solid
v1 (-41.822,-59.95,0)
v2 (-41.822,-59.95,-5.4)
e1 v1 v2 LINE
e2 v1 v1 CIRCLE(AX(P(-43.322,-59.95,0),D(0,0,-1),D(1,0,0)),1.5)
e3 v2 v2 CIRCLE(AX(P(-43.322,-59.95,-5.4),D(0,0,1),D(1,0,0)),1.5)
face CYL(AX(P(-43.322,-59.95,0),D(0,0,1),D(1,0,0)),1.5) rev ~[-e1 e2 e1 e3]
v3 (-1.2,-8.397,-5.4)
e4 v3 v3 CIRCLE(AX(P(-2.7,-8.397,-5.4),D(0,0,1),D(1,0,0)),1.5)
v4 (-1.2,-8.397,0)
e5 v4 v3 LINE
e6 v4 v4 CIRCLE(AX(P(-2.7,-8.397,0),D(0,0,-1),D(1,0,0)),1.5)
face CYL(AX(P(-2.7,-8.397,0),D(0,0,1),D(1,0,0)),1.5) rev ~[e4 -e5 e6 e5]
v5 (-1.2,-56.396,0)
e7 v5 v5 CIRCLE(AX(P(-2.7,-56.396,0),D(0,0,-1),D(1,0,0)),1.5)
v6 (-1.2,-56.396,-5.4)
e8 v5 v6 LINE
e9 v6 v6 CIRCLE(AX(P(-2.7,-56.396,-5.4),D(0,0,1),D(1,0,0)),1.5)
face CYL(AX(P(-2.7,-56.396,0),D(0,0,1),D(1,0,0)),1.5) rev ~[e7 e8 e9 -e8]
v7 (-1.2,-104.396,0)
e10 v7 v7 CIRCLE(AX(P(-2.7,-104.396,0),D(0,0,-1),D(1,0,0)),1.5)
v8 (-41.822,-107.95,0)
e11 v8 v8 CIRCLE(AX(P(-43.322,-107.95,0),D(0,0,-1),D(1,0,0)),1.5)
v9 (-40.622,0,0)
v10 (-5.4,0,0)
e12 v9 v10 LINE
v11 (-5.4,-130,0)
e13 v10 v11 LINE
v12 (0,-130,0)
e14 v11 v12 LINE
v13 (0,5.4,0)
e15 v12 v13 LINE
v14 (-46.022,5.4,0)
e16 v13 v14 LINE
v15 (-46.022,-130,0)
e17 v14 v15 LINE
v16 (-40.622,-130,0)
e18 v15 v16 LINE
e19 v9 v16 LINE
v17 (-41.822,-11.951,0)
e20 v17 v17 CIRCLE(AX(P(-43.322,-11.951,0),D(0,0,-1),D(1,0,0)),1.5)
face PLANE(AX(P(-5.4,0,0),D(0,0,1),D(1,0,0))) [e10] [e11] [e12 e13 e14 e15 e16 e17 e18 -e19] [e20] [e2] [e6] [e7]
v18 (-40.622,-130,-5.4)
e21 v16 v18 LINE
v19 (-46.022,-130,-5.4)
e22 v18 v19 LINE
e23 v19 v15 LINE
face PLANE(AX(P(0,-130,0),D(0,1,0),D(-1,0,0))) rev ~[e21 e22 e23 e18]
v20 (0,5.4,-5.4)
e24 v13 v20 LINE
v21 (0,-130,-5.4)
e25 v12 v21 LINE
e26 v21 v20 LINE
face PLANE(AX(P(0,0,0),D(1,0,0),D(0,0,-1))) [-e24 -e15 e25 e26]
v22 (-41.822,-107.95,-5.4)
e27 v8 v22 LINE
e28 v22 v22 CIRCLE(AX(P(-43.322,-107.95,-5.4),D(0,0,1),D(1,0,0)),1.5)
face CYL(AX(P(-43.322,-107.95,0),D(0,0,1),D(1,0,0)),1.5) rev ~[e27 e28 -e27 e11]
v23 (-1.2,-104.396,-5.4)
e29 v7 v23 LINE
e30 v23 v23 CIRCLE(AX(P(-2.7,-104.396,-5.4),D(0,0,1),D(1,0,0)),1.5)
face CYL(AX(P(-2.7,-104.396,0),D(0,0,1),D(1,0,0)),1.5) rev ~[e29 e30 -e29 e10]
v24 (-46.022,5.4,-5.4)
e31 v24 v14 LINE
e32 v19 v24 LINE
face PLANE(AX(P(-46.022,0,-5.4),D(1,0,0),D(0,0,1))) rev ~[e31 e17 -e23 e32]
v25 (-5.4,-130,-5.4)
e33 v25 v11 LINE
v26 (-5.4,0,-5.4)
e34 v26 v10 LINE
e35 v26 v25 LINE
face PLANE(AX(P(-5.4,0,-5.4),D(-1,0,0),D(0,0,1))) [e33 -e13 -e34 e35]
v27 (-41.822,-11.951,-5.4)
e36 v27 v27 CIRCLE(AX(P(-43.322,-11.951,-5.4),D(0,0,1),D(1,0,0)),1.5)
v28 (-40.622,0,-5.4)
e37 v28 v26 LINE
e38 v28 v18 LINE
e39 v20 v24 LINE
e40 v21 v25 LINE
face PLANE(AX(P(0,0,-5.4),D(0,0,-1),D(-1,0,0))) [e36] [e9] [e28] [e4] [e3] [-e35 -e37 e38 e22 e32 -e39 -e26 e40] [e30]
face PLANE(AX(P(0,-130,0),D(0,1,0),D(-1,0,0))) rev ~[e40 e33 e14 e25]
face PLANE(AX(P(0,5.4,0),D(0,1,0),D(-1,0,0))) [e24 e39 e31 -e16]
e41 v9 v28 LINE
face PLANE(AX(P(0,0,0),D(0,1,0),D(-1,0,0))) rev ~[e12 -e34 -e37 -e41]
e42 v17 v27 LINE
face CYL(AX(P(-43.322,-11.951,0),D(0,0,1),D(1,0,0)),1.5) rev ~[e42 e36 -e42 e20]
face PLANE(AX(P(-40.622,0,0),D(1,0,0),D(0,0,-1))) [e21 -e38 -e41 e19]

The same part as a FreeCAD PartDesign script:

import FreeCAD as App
import Part
import Sketcher

V = App.Vector


def add_polygon(sketch, points):
    """Adds a closed chain of lines whose ends are joined by coincident constraints."""
    first, n = sketch.GeometryCount, len(points)
    for a, b in zip(points, points[1:] + points[:1]):
        sketch.addGeometry(Part.LineSegment(App.Vector(*a, 0), App.Vector(*b, 0)), False)
    for i in range(n):
        sketch.addConstraint(Sketcher.Constraint("Coincident", first + i, 2, first + (i + 1) % n, 1))

doc = App.newDocument("Part")
body = doc.addObject("PartDesign::Body", "Body")
body.AllowCompound = True

sketch1 = doc.addObject("Sketcher::SketchObject", "Sketch")
body.addObject(sketch1)
sketch1.AttachmentSupport = (doc.XZ_Plane, [""])
sketch1.MapMode = "FlatFace"
add_polygon(sketch1, [(-5.4, 0), (0, 0), (0, -5.4), (-5.4, -5.4)])
add_polygon(sketch1, [(-46.022, 0), (-40.622, 0), (-40.622, -5.4), (-46.022, -5.4)])
sketch1.addConstraint(Sketcher.Constraint("Horizontal", 0))
sketch1.addConstraint(Sketcher.Constraint("Vertical", 1))
sketch1.addConstraint(Sketcher.Constraint("Horizontal", 2))
sketch1.addConstraint(Sketcher.Constraint("Vertical", 3))
sketch1.addConstraint(Sketcher.Constraint("Horizontal", 4))
sketch1.addConstraint(Sketcher.Constraint("Vertical", 5))
sketch1.addConstraint(Sketcher.Constraint("Horizontal", 6))
sketch1.addConstraint(Sketcher.Constraint("Vertical", 7))
sketch1.addConstraint(Sketcher.Constraint("Coincident", 0, 2, -1, 1))
sketch1.addConstraint(Sketcher.Constraint("PointOnObject", 4, 2, -1))
sketch1.addConstraint(Sketcher.Constraint("Horizontal", 2, 2, 5, 2))
sketch1.addConstraint(Sketcher.Constraint("Equal", 2, 4))
sketch1.addConstraint(Sketcher.Constraint("Equal", 6, 1))
sketch1.addConstraint(Sketcher.Constraint("DistanceX", 0, 1, 0, 2, 5.4))
sketch1.addConstraint(Sketcher.Constraint("DistanceX", 4, 2, 3, 2, 35.222))
pad1 = doc.addObject("PartDesign::Pad", "Pad")
body.addObject(pad1)
pad1.Profile = sketch1
pad1.Length = 130

sketch2 = doc.addObject("Sketcher::SketchObject", "Sketch001")
body.addObject(sketch2)
sketch2.AttachmentSupport = (doc.XZ_Plane, [""])
sketch2.MapMode = "FlatFace"
add_polygon(sketch2, [(0, 0), (0, -5.4), (-46.022, -5.4), (-46.022, 0)])
sketch2.addConstraint(Sketcher.Constraint("Vertical", 0))
sketch2.addConstraint(Sketcher.Constraint("Horizontal", 1))
sketch2.addConstraint(Sketcher.Constraint("Vertical", 2))
sketch2.addConstraint(Sketcher.Constraint("Horizontal", 3))
sketch2.addConstraint(Sketcher.Constraint("Coincident", 3, 2, -1, 1))
sketch2.addConstraint(Sketcher.Constraint("DistanceY", 0, 2, 0, 1, 5.4))
sketch2.addConstraint(Sketcher.Constraint("DistanceX", 1, 2, 1, 1, 46.022))
pad2 = doc.addObject("PartDesign::Pad", "Pad001")
body.addObject(pad2)
pad2.Profile = sketch2
pad2.Length = 5.4
pad2.Reversed = True

sketch3 = doc.addObject("Sketcher::SketchObject", "Sketch002")
body.addObject(sketch3)
sketch3.AttachmentSupport = (doc.XY_Plane, [""])
sketch3.MapMode = "FlatFace"
sketch3.addGeometry(Part.Circle(V(-2.7, -104.396, 0), V(0, 0, 1), 1.5), False)
sketch3.addGeometry(Part.Circle(V(-43.322, -107.95, 0), V(0, 0, 1), 1.5), False)
sketch3.addGeometry(Part.Circle(V(-2.7, -56.396, 0), V(0, 0, 1), 1.5), False)
sketch3.addGeometry(Part.Circle(V(-43.322, -59.95, 0), V(0, 0, 1), 1.5), False)
sketch3.addGeometry(Part.Circle(V(-2.7, -8.397, 0), V(0, 0, 1), 1.5), False)
sketch3.addGeometry(Part.Circle(V(-43.322, -11.951, 0), V(0, 0, 1), 1.5), False)
sketch3.addConstraint(Sketcher.Constraint("Equal", 0, 1))
sketch3.addConstraint(Sketcher.Constraint("Equal", 1, 2))
sketch3.addConstraint(Sketcher.Constraint("Equal", 2, 3))
sketch3.addConstraint(Sketcher.Constraint("Equal", 3, 4))
sketch3.addConstraint(Sketcher.Constraint("Equal", 4, 5))
sketch3.addConstraint(Sketcher.Constraint("Vertical", 0, 3, 2, 3))
sketch3.addConstraint(Sketcher.Constraint("Vertical", 1, 3, 3, 3))
sketch3.addConstraint(Sketcher.Constraint("Vertical", 2, 3, 4, 3))
sketch3.addConstraint(Sketcher.Constraint("Vertical", 3, 3, 5, 3))
sketch3.addConstraint(Sketcher.Constraint("Diameter", 0, 3.0))
sketch3.addConstraint(Sketcher.Constraint("DistanceY", 0, 3, 2, 3, 48.0))
sketch3.addConstraint(Sketcher.Constraint("DistanceY", 1, 3, 3, 3, 48.0))
sketch3.addConstraint(Sketcher.Constraint("DistanceY", 2, 3, 4, 3, 47.999))
sketch3.addConstraint(Sketcher.Constraint("DistanceY", 3, 3, 5, 3, 47.999))
sketch3.addConstraint(Sketcher.Constraint("DistanceX", 0, 3, -1, 1, 2.7))
sketch3.addConstraint(Sketcher.Constraint("DistanceY", 1, 3, -1, 1, 107.95))
sketch3.addConstraint(Sketcher.Constraint("DistanceY", 0, 3, -1, 1, 104.396))
sketch3.addConstraint(Sketcher.Constraint("DistanceX", 1, 3, -1, 1, 43.322))
pocket1 = doc.addObject("PartDesign::Pocket", "Pocket")
body.addObject(pocket1)
pocket1.Profile = sketch3
pocket1.Type = "ThroughAll"

doc.recompute()
